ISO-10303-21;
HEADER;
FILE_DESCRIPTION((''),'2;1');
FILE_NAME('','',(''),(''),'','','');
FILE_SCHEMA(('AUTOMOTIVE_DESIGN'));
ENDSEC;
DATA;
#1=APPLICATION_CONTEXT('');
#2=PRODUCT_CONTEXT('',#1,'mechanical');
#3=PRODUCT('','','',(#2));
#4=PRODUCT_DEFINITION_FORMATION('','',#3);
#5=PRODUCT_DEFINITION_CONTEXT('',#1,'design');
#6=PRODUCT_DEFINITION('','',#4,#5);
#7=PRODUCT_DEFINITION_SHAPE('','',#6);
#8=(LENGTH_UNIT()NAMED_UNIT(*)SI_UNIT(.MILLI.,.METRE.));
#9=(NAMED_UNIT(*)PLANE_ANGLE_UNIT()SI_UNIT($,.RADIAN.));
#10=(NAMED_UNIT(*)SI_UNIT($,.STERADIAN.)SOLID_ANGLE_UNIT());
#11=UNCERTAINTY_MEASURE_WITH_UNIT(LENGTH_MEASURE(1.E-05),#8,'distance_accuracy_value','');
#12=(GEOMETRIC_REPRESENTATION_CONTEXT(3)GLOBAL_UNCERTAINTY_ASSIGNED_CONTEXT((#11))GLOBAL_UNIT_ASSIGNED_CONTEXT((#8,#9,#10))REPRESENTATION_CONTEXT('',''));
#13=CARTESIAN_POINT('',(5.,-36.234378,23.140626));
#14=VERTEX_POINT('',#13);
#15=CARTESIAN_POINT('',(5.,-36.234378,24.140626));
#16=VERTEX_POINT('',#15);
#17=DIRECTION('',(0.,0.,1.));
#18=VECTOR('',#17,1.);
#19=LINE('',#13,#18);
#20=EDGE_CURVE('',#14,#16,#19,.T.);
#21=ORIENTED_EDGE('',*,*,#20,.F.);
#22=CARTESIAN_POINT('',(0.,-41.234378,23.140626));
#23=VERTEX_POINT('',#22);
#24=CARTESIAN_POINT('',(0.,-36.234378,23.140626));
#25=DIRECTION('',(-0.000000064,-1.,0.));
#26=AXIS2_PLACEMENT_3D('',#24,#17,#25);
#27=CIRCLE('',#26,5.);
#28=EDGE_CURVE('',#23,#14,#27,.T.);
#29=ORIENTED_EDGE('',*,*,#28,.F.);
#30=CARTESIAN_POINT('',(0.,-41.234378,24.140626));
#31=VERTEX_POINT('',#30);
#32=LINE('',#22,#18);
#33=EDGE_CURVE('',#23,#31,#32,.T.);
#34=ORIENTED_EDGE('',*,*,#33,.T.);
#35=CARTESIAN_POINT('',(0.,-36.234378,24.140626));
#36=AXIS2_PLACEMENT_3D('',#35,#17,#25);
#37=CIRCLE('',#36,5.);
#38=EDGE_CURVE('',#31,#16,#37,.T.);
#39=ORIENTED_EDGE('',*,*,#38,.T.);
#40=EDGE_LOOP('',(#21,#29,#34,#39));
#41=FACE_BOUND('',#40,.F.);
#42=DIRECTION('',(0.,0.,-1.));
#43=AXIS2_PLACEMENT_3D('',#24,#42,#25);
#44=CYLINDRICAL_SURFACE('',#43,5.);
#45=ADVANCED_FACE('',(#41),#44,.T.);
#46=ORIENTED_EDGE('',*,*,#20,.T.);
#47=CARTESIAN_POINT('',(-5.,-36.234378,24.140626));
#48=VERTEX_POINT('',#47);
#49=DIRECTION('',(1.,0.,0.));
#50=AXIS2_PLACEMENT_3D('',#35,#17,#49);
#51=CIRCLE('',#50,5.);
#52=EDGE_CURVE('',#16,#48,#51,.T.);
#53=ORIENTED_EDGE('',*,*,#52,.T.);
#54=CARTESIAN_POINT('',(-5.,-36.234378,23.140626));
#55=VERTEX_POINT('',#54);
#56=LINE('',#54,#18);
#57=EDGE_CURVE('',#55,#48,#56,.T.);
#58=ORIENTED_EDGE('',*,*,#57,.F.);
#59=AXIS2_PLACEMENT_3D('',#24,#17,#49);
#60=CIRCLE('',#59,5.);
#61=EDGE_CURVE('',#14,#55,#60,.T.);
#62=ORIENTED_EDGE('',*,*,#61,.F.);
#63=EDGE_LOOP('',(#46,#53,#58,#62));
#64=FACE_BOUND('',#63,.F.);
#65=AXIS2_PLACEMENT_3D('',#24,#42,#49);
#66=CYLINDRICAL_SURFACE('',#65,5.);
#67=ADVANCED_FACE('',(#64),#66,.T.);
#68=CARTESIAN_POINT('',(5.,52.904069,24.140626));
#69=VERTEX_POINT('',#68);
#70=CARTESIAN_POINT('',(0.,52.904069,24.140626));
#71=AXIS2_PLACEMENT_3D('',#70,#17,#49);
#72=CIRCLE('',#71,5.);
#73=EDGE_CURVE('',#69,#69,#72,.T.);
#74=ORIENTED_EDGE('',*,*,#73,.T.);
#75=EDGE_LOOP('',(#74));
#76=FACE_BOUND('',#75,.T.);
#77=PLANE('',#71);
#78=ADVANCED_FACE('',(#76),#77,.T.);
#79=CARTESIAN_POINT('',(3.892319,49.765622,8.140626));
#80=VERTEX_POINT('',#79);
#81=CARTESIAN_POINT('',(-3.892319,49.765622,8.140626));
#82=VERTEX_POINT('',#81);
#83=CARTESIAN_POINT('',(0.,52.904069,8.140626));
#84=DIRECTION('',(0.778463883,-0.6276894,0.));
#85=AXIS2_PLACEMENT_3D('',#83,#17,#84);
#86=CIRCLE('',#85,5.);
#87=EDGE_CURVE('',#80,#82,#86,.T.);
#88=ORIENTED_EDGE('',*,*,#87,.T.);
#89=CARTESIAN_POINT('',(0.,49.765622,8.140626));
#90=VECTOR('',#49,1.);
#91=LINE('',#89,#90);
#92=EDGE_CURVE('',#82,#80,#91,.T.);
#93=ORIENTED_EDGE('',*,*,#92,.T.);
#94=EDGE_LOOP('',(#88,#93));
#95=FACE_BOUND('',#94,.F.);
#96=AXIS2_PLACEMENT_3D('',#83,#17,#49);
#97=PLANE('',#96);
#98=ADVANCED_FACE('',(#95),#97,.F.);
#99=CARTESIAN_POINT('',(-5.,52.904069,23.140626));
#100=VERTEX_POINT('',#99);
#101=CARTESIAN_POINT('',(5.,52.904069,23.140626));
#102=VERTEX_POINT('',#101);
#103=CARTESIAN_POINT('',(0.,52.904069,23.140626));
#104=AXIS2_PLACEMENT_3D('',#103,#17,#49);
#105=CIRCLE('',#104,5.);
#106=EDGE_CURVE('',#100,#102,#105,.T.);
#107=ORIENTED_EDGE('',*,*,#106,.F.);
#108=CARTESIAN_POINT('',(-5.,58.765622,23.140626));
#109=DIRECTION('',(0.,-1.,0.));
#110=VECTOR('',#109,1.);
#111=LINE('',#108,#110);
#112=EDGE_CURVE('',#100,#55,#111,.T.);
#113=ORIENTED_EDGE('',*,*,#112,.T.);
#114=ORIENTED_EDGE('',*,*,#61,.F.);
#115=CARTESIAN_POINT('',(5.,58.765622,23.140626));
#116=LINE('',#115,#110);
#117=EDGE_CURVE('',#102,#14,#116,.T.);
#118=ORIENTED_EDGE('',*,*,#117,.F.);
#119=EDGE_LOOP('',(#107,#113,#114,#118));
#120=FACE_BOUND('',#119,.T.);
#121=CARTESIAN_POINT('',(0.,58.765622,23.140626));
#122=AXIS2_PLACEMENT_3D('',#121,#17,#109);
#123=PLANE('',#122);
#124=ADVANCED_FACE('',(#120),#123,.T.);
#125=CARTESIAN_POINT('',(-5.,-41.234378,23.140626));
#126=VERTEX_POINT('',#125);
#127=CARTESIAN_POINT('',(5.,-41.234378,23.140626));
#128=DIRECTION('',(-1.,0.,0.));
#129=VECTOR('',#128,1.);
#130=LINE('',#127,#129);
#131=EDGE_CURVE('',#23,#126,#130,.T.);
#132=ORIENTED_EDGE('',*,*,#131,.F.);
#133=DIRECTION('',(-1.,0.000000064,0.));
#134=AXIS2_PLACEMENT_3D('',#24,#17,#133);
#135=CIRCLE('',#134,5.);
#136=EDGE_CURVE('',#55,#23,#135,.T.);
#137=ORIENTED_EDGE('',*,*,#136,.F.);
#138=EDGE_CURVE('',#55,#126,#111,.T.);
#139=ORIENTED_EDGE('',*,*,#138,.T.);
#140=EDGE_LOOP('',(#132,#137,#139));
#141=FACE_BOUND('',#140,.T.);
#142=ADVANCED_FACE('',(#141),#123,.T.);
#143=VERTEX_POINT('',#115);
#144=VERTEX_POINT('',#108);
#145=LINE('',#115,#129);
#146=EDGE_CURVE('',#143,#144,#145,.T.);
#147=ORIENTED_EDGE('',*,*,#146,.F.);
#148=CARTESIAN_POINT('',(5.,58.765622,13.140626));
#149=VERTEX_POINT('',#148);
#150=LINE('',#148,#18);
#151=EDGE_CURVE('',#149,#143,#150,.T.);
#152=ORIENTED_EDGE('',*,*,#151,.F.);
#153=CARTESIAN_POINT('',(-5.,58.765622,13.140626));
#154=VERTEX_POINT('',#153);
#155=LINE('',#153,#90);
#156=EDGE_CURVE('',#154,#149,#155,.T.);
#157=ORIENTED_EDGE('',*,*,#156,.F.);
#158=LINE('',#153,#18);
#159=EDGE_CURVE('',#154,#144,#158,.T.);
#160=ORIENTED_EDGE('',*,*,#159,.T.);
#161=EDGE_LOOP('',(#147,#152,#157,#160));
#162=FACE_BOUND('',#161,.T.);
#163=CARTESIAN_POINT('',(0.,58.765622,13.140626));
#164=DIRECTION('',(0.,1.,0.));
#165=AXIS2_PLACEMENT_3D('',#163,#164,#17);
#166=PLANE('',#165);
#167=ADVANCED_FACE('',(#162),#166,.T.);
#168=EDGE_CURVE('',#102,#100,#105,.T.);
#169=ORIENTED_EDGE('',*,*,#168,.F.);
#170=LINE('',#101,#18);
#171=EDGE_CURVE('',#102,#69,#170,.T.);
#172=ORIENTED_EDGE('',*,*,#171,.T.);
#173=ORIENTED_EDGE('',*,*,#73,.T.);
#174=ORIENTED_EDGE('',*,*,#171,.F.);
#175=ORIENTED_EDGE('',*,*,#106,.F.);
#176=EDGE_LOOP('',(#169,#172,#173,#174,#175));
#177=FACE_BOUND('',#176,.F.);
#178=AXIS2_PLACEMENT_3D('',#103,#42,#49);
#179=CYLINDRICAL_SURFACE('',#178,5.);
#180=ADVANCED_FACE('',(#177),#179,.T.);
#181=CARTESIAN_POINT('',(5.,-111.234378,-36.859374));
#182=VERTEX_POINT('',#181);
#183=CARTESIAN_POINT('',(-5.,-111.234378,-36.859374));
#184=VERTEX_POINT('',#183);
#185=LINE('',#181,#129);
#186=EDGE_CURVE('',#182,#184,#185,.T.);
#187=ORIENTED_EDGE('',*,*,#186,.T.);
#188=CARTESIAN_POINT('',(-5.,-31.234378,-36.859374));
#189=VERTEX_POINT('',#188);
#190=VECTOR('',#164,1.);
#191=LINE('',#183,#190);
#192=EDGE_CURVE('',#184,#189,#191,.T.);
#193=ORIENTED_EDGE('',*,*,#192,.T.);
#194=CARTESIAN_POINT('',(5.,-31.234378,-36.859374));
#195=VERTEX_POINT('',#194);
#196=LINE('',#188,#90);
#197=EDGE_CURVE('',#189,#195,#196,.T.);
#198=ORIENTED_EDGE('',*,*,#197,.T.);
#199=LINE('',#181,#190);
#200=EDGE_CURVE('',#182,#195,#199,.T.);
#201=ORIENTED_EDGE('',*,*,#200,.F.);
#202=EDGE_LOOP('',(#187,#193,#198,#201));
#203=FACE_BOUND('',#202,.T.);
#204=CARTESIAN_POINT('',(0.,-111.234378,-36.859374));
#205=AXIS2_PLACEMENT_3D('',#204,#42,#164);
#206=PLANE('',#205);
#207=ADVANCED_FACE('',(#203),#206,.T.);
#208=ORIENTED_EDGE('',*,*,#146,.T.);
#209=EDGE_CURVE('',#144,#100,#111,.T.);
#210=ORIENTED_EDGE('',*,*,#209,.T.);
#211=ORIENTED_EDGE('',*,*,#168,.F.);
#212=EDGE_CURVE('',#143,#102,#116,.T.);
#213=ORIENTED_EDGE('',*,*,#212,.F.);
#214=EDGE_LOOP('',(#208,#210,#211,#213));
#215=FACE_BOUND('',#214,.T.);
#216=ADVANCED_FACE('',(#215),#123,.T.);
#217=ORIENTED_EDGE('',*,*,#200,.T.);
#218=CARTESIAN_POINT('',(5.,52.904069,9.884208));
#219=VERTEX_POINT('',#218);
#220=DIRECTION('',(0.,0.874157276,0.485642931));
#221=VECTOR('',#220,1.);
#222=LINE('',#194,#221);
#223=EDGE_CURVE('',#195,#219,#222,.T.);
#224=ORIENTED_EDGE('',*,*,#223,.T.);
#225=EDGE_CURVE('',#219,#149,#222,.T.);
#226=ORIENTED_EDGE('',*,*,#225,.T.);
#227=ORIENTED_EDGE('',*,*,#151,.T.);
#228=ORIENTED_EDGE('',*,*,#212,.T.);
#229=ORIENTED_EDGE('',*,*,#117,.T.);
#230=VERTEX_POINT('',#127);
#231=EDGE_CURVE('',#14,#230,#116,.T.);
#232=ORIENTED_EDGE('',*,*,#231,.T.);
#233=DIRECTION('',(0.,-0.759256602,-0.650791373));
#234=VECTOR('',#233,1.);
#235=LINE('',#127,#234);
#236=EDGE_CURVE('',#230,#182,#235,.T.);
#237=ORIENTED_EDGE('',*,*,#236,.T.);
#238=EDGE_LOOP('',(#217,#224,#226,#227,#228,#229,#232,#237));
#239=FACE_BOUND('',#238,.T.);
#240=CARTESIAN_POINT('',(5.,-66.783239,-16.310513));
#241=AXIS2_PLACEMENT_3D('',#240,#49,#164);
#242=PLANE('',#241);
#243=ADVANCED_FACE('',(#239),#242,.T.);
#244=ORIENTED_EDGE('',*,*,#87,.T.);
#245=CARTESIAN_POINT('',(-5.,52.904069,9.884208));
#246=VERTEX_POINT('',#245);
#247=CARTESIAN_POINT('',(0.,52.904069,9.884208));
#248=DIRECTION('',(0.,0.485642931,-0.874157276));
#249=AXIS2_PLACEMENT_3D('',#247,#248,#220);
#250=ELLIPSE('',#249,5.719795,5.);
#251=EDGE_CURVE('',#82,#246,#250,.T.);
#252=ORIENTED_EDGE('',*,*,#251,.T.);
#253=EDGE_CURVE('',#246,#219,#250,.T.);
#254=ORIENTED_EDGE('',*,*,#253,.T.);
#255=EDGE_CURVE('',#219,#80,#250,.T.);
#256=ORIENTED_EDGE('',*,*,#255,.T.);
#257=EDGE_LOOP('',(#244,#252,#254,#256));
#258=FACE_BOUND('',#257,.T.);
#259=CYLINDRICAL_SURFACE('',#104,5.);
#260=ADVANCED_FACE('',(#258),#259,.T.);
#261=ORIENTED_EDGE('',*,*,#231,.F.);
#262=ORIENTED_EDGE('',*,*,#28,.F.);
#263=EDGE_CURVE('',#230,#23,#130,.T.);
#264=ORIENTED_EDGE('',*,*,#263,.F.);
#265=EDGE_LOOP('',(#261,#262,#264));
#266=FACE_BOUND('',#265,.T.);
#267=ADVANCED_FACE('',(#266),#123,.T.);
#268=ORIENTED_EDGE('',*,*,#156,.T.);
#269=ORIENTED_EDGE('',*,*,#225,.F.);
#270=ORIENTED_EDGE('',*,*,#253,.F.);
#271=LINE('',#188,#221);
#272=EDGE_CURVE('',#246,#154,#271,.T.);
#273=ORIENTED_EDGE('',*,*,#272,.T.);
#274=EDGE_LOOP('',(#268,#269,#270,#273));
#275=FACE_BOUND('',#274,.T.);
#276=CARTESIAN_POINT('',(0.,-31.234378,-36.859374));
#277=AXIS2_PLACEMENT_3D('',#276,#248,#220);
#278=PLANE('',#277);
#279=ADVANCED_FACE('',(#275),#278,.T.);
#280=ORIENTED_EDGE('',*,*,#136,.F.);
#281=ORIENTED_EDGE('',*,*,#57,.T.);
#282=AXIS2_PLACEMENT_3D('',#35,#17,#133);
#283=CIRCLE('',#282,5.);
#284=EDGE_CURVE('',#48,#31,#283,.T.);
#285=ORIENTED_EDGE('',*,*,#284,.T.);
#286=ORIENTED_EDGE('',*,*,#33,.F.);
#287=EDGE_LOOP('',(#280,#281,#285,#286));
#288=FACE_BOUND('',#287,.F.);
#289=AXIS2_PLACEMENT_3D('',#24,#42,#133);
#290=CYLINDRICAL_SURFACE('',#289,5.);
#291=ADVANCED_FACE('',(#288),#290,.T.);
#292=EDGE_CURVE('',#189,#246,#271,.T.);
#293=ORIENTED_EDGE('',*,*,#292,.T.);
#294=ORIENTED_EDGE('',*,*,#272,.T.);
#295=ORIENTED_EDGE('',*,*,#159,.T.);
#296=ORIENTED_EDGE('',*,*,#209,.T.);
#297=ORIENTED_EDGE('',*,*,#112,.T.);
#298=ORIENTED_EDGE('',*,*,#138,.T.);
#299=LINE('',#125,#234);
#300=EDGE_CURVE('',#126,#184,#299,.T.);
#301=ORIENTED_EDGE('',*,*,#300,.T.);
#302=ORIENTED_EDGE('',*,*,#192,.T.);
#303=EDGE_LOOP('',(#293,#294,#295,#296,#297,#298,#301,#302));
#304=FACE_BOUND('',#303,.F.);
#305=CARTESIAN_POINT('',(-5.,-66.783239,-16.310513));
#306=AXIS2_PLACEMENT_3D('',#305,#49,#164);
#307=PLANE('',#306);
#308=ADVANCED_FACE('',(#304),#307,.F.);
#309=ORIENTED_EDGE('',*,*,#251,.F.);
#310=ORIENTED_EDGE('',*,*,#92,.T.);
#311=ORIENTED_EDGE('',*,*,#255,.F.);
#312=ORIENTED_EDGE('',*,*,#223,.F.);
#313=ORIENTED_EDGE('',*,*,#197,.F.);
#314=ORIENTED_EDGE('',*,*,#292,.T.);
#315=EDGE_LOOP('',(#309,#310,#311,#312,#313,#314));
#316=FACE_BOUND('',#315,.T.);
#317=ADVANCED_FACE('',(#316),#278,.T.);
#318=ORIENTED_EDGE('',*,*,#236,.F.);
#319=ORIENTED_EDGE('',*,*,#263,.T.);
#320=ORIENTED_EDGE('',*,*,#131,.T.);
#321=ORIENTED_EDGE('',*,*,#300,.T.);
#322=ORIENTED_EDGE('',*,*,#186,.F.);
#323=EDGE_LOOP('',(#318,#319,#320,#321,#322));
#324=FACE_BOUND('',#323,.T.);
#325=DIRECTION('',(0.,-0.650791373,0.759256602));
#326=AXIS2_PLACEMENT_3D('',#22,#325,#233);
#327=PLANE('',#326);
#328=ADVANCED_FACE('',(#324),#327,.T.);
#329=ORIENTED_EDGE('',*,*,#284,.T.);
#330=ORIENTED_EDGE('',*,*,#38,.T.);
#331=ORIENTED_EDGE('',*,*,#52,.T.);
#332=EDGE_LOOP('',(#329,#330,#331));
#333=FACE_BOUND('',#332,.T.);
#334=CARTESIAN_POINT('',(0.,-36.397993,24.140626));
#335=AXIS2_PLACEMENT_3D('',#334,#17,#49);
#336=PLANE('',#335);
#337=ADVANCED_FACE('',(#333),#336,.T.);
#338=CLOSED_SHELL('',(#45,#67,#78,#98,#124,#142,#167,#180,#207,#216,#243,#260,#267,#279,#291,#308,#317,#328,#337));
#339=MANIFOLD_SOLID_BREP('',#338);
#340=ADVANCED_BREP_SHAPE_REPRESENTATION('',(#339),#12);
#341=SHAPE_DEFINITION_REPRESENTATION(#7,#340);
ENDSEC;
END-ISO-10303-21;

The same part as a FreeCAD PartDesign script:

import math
import FreeCAD as App
import Part
import Sketcher
from FreeCAD import Vector
Q = App.Units.Quantity

doc = App.newDocument("Part")
body = doc.addObject("PartDesign::Body", "Body")

# Sketch on YZ plane
sketch1 = body.newObject("Sketcher::SketchObject", "Sketch")
sketch1.AttachmentSupport = (doc.getObject("YZ_Plane"), [""])
sketch1.MapMode = "FlatFace"
sketch1.addGeometry(Part.LineSegment(Vector(-111, -37, 0), Vector(-31, -37, 0)), False)
sketch1.addGeometry(Part.LineSegment(Vector(-31, -37, 0), Vector(59, 13, 0)), False)
sketch1.addGeometry(Part.LineSegment(Vector(59, 13, 0), Vector(59, 23, 0)), False)
sketch1.addGeometry(Part.LineSegment(Vector(59, 23, 0), Vector(-41, 23, 0)), False)
sketch1.addGeometry(Part.LineSegment(Vector(-41, 23, 0), Vector(-111, -37, 0)), False)
sketch1.addConstraint(Sketcher.Constraint("Coincident", 0, 2, 1, 1))
sketch1.addConstraint(Sketcher.Constraint("Coincident", 1, 2, 2, 1))
sketch1.addConstraint(Sketcher.Constraint("Coincident", 2, 2, 3, 1))
sketch1.addConstraint(Sketcher.Constraint("Coincident", 3, 2, 4, 1))
sketch1.addConstraint(Sketcher.Constraint("Coincident", 4, 2, 0, 1))
sketch1.addConstraint(Sketcher.Constraint("Horizontal", 0))
sketch1.addConstraint(Sketcher.Constraint("Vertical", 2))
sketch1.addConstraint(Sketcher.Constraint("Horizontal", 3))
sketch1.addConstraint(Sketcher.Constraint("DistanceX", 0, 1, 0, 2, Q("80 mm")))
sketch1.addConstraint(Sketcher.Constraint("DistanceX", 3, 2, 3, 1, Q("100 mm")))
sketch1.addConstraint(Sketcher.Constraint("DistanceY", 2, 1, 2, 2, Q("10 mm")))
sketch1.addConstraint(Sketcher.Constraint("DistanceX", 0, 2, 1, 2, Q("90 mm")))
sketch1.addConstraint(Sketcher.Constraint("DistanceY", 0, 2, 1, 2, Q("50 mm")))
sketch1.addConstraint(Sketcher.Constraint("DistanceX", 4, 2, -1, 1, Q("111.234378 mm")))
sketch1.addConstraint(Sketcher.Constraint("DistanceY", 0, 2, -1, 1, Q("36.859374 mm")))
pad1 = body.newObject("PartDesign::Pad", "Pad")
pad1.Profile = sketch1
pad1.Length = 10
pad1.Midplane = True

# Sketch on XY plane
sketch2 = body.newObject("Sketcher::SketchObject", "Sketch001")
sketch2.AttachmentSupport = (doc.getObject("XY_Plane"), [""])
sketch2.MapMode = "FlatFace"
sketch2.AttachmentOffset = App.Placement(Vector(0, 0, 23.140626), App.Rotation())
sketch2.addGeometry(Part.Circle(Vector(0, 53, 0), Vector(0, 0, 1), 5), False)
sketch2.addConstraint(Sketcher.Constraint("PointOnObject", 0, 3, -2))
sketch2.addConstraint(Sketcher.Constraint("Diameter", 0, Q("10 mm")))
sketch2.addConstraint(Sketcher.Constraint("DistanceY", -1, 1, 0, 3, Q("52.904069 mm")))
pad2 = body.newObject("PartDesign::Pad", "Pad001")
pad2.Profile = sketch2
pad2.Type = "TwoLengths"
pad2.Length = 1
pad2.Length2 = 15

# Sketch on XY plane
sketch3 = body.newObject("Sketcher::SketchObject", "Sketch002")
sketch3.AttachmentSupport = (doc.getObject("XY_Plane"), [""])
sketch3.MapMode = "FlatFace"
sketch3.AttachmentOffset = App.Placement(Vector(0, 0, 23.140626), App.Rotation())
sketch3.addGeometry(Part.ArcOfCircle(Part.Circle(Vector(0, -36.2, 0), Vector(0, 0, 1), 5), math.radians(-90), math.radians(0)), False)
sketch3.addGeometry(Part.ArcOfCircle(Part.Circle(Vector(0, -36.2, 0), Vector(0, 0, 1), 5), math.radians(0), math.radians(180)), False)
sketch3.addGeometry(Part.ArcOfCircle(Part.Circle(Vector(0, -36.2, 0), Vector(0, 0, 1), 5), math.radians(180), math.radians(270)), False)
sketch3.addConstraint(Sketcher.Constraint("Tangent", 0, 2, 1, 1))
sketch3.addConstraint(Sketcher.Constraint("Tangent", 1, 2, 2, 1))
sketch3.addConstraint(Sketcher.Constraint("Tangent", 2, 2, 0, 1))
sketch3.addConstraint(Sketcher.Constraint("Symmetric", 0, 2, 1, 2, -2))
sketch3.addConstraint(Sketcher.Constraint("PointOnObject", 2, 2, -2))
sketch3.addConstraint(Sketcher.Constraint("Horizontal", 2, 3, 0, 2))
sketch3.addConstraint(Sketcher.Constraint("Radius", 0, Q("5 mm")))
sketch3.addConstraint(Sketcher.Constraint("DistanceY", 0, 3, -1, 1, Q("36.234378 mm")))
pad3 = body.newObject("PartDesign::Pad", "Pad002")
pad3.Profile = sketch3
pad3.Type = "TwoLengths"
pad3.Length = 1
pad3.Length2 = 59.9

doc.recompute()
